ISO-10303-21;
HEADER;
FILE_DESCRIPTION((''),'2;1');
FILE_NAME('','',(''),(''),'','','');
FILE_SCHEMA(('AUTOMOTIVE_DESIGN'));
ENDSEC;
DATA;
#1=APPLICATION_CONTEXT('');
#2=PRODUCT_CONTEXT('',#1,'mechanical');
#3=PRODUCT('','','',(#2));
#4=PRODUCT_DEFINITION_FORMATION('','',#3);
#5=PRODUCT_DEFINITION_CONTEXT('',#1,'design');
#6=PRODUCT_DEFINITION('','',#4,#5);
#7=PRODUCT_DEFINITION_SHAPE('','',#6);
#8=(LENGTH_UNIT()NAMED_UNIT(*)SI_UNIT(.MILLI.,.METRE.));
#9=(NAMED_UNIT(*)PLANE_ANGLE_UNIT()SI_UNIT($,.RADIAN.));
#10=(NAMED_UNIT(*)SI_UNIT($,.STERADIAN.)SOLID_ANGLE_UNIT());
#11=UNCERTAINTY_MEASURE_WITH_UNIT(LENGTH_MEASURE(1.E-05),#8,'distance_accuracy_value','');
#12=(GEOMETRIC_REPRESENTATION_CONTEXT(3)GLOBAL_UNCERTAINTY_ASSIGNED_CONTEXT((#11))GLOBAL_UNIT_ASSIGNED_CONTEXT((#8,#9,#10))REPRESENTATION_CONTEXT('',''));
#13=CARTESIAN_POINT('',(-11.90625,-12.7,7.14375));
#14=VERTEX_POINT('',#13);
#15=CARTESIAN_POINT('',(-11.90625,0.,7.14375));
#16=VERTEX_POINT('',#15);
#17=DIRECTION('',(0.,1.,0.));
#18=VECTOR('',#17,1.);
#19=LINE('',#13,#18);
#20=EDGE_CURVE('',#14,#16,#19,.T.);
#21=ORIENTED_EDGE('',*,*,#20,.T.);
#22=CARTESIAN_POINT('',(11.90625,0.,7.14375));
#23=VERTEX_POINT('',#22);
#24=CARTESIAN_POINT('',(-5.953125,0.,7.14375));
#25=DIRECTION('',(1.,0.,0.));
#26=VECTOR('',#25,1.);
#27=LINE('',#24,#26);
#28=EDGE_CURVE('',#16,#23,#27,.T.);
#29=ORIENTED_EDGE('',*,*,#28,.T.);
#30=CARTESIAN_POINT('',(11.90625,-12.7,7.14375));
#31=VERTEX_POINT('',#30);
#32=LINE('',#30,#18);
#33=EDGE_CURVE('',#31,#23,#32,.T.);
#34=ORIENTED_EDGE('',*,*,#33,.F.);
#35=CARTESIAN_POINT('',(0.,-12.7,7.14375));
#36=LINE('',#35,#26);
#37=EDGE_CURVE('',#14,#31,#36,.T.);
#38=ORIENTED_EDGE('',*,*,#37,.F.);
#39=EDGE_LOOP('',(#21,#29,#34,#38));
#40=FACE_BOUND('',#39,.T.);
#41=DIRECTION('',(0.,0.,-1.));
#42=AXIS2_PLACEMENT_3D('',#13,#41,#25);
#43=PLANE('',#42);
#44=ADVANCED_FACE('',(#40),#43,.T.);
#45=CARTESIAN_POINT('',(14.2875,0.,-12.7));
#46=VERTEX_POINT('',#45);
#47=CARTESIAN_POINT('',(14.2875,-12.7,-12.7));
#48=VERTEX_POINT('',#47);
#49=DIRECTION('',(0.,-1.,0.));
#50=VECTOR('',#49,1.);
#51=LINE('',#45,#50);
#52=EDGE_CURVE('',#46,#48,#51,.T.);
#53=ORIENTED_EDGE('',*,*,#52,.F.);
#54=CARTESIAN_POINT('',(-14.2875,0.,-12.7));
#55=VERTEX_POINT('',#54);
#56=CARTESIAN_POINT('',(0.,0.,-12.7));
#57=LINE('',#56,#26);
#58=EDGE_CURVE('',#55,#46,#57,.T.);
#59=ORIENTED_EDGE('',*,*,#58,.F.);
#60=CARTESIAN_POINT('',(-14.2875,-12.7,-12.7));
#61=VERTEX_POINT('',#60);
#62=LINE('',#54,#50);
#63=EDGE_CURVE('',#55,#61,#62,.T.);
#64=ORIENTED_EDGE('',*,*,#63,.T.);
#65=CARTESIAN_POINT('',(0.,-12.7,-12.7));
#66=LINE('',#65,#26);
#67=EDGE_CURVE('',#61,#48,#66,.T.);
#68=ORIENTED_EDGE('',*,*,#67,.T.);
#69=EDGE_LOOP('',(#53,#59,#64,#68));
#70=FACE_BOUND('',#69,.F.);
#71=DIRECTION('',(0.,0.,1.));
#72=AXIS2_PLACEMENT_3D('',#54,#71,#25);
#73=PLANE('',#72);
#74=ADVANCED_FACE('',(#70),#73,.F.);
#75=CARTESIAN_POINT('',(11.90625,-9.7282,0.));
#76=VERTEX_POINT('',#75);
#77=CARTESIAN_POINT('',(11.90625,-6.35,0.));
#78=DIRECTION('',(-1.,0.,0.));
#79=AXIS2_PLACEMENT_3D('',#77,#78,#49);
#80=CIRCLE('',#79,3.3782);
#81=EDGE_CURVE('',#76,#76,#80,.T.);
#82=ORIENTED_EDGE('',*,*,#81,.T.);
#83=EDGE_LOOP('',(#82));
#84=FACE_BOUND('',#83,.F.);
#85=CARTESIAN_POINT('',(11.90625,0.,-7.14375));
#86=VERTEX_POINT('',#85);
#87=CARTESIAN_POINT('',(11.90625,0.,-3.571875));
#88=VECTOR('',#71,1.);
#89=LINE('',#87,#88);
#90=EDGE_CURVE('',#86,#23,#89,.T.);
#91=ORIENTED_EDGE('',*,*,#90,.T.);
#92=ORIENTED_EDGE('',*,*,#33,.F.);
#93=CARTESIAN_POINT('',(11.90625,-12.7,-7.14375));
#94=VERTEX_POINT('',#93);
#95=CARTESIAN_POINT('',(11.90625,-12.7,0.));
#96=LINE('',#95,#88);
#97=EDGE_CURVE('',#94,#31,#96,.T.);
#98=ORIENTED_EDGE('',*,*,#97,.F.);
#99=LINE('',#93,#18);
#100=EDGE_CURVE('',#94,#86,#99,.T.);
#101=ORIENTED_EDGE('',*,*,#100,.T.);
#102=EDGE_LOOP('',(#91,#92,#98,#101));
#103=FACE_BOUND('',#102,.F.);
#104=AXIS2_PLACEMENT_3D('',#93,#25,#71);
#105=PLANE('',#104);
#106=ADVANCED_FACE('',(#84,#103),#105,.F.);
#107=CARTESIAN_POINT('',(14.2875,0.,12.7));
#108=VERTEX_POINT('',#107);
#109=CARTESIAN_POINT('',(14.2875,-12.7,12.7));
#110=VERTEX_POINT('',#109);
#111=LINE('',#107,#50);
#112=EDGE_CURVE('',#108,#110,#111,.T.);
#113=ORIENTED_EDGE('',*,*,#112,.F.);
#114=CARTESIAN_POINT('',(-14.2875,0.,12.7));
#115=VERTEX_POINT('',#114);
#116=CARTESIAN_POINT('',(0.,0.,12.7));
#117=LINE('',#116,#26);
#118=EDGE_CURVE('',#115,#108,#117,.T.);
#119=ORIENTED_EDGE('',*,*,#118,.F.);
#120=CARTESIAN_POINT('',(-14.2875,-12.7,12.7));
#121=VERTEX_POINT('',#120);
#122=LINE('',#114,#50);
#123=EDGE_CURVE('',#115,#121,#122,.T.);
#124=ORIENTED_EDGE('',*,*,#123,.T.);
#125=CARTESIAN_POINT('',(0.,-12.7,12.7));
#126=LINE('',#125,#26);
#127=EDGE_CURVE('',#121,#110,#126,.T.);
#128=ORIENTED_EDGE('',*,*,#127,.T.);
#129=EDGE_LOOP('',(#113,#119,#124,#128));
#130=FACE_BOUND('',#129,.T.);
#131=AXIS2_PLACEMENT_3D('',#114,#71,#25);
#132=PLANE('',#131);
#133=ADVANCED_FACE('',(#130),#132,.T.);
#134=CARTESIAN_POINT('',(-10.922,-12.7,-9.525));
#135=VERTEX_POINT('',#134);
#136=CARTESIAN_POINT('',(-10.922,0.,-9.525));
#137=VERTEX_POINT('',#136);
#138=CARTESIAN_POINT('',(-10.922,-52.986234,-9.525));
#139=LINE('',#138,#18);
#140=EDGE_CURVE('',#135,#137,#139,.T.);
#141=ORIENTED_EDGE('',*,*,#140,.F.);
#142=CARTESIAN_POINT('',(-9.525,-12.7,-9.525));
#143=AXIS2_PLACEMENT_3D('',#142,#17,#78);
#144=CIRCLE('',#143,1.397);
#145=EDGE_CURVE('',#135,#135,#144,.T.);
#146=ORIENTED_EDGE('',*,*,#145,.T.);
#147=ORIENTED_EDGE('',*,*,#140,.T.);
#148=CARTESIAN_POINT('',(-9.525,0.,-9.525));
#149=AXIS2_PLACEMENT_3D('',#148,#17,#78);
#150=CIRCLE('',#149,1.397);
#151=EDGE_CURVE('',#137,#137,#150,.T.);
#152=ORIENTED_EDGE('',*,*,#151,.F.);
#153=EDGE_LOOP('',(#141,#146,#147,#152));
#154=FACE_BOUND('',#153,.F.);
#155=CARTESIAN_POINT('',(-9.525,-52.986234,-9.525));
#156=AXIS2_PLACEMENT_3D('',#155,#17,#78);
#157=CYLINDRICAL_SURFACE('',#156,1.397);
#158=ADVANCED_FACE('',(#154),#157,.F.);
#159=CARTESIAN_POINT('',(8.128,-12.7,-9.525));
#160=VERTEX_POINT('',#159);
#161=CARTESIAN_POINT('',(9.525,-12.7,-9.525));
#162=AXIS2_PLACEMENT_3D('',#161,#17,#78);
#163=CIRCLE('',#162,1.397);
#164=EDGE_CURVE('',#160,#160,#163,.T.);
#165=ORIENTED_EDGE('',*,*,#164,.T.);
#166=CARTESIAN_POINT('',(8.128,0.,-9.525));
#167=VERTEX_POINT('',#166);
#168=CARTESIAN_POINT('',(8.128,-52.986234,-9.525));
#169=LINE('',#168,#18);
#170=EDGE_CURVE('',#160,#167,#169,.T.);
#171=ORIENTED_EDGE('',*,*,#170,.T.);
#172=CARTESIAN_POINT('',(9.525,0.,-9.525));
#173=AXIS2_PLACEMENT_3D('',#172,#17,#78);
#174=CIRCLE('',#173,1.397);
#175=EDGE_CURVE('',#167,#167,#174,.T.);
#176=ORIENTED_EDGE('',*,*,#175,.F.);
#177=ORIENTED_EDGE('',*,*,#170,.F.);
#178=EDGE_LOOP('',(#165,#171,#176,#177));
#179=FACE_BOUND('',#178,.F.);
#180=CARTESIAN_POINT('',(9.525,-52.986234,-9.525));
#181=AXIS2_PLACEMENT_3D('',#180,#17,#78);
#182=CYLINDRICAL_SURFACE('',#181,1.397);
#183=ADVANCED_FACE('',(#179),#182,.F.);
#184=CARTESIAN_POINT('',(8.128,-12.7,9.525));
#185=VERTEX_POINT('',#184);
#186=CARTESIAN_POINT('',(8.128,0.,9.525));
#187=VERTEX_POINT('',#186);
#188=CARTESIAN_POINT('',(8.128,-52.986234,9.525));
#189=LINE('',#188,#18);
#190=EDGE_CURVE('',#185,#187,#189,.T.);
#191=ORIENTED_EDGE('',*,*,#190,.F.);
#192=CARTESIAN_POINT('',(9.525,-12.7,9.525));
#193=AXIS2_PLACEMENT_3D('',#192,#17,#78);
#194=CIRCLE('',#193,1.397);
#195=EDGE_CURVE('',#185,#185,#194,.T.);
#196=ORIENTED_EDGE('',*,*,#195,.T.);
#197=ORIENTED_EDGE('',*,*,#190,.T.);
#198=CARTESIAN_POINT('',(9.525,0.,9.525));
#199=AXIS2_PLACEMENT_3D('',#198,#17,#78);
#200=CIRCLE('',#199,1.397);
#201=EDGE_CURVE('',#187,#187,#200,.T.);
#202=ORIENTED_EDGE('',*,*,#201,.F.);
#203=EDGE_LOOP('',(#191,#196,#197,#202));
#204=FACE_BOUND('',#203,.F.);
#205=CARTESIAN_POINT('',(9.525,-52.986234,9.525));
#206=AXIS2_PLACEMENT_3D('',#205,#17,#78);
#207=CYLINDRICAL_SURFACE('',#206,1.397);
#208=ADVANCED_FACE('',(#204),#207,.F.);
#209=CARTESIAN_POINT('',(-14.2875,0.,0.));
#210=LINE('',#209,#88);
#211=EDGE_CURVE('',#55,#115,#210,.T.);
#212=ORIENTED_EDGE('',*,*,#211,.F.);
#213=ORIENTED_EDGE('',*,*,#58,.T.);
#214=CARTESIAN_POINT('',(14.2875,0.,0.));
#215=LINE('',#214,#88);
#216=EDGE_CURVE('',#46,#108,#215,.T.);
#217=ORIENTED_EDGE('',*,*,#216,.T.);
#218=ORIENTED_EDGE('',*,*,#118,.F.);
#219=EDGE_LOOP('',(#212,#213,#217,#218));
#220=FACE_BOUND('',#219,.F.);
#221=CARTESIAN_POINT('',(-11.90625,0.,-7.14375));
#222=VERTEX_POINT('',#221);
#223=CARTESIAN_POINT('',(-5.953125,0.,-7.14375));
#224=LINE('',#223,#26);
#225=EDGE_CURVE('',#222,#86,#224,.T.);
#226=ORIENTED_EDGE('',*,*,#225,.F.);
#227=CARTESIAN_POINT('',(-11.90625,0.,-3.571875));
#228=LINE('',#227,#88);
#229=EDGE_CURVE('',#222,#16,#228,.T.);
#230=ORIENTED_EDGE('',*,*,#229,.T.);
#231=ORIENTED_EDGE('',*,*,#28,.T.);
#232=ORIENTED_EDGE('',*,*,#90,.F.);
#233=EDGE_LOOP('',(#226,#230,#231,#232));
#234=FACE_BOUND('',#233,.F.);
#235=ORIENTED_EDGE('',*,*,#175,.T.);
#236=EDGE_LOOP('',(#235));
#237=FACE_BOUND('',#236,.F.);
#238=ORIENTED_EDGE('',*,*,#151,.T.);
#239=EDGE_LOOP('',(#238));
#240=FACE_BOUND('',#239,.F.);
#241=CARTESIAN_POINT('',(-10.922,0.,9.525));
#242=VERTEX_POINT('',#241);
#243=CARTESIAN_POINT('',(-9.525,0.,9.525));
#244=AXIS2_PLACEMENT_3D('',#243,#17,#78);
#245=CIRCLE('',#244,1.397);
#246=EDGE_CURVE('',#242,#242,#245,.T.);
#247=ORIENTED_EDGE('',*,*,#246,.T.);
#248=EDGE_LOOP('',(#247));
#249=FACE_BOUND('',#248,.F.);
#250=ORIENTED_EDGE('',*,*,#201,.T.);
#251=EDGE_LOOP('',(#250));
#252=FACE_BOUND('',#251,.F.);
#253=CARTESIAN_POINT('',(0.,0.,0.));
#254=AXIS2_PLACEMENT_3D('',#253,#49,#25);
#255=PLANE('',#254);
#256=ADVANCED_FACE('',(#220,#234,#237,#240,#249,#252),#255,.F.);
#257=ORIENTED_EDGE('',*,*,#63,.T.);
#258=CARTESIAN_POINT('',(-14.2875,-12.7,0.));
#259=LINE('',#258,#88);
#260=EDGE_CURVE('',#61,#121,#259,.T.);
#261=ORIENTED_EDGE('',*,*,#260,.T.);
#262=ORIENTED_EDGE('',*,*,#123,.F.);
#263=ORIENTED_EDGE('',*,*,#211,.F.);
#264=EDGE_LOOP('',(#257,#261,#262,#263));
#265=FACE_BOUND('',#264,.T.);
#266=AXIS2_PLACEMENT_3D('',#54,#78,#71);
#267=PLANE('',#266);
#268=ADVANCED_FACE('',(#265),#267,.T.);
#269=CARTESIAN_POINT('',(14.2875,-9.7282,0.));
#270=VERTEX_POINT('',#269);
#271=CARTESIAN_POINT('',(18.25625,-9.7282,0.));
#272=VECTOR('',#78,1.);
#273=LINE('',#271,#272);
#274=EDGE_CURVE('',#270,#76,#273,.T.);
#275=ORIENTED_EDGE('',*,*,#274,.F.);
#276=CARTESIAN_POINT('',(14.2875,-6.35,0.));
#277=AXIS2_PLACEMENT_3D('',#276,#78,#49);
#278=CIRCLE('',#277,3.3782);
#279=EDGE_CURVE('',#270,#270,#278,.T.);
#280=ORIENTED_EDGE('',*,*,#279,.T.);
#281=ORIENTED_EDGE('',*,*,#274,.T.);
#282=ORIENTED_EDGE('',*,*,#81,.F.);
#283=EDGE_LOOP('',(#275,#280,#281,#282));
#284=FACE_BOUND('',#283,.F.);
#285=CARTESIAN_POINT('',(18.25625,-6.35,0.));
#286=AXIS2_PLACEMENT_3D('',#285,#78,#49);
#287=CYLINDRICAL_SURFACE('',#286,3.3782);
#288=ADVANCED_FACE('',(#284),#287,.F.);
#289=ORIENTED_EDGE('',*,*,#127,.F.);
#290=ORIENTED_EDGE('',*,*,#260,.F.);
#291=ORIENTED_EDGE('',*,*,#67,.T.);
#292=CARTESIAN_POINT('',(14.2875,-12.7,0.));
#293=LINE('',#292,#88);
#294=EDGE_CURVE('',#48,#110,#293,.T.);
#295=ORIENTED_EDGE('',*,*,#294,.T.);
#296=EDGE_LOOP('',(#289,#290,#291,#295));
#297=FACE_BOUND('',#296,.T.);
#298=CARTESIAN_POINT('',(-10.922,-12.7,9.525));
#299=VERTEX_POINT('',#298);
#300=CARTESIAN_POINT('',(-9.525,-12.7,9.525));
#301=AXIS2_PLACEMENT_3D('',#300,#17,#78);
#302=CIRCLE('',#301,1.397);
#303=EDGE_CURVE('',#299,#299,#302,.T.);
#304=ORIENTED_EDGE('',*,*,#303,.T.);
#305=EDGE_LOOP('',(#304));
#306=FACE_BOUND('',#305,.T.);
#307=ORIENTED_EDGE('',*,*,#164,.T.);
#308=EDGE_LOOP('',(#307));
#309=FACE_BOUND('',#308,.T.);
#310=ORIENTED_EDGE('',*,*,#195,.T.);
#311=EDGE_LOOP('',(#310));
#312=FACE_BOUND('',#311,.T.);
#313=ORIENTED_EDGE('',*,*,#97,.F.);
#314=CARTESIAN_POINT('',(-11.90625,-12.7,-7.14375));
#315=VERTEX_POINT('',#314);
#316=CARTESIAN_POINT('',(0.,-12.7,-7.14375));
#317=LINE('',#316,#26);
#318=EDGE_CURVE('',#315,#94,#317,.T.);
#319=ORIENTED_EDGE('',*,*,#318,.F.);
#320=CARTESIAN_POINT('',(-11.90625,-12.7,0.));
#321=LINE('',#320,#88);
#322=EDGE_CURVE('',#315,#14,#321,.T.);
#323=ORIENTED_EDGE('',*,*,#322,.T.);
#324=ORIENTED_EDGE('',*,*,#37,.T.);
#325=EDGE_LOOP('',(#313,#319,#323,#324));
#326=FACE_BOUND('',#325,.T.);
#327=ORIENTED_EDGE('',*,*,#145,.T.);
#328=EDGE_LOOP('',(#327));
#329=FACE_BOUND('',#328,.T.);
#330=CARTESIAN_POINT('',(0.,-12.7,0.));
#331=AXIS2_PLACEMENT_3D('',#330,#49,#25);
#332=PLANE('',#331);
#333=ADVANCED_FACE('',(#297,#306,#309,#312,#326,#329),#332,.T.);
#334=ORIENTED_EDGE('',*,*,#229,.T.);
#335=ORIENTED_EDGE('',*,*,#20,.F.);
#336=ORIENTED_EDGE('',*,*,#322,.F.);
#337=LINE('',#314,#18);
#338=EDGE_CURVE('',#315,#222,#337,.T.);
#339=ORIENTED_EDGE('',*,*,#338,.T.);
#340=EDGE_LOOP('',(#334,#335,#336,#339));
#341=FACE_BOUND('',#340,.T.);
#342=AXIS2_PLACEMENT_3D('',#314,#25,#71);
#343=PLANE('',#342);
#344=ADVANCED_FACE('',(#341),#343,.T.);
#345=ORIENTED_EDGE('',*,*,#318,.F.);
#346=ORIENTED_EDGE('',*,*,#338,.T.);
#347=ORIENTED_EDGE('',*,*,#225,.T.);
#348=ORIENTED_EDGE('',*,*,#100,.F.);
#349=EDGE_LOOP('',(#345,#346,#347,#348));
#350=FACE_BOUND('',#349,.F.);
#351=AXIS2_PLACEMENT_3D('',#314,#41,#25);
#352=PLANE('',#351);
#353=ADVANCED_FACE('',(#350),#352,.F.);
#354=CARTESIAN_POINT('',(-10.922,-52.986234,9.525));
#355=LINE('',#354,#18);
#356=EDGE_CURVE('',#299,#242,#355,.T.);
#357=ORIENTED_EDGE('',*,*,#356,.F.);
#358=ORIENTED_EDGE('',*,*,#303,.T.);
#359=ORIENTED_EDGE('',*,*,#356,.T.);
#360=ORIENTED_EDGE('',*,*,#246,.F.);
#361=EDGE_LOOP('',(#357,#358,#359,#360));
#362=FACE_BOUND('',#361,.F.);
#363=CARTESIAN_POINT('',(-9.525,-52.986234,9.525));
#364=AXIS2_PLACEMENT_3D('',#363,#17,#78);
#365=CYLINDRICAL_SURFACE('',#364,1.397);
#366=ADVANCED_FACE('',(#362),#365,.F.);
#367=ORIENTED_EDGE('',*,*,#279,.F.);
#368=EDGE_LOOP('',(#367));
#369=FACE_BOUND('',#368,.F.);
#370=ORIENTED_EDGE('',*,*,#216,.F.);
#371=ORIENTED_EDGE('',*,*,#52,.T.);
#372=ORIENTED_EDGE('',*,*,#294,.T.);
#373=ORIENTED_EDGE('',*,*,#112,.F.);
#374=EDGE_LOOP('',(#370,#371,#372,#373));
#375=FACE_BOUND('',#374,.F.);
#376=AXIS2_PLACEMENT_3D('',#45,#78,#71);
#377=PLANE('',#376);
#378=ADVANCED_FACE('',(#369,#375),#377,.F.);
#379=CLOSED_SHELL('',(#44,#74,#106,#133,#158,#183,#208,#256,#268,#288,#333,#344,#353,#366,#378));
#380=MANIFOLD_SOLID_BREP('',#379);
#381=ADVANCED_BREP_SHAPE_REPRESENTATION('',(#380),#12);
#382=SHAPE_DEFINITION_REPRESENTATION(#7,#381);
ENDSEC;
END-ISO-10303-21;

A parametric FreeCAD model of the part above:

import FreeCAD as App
import Part
import Sketcher
from FreeCAD import Vector
Q = App.Units.Quantity

doc = App.newDocument("Part")
body = doc.addObject("PartDesign::Body", "Body")

# Sketch on XZ plane
sketch1 = doc.addObject("Sketcher::SketchObject", "Sketch")
body.addObject(sketch1)
sketch1.AttachmentSupport = (doc.XZ_Plane, [""])
sketch1.MapMode = "FlatFace"
sketch1.addGeometry(Part.LineSegment(Vector(-14.2875, 12.7, 0), Vector(-14.2875, -12.7, 0)), False)
sketch1.addGeometry(Part.LineSegment(Vector(-14.2875, -12.7, 0), Vector(14.2875, -12.7, 0)), False)
sketch1.addGeometry(Part.LineSegment(Vector(14.2875, -12.7, 0), Vector(14.2875, 12.7, 0)), False)
sketch1.addGeometry(Part.LineSegment(Vector(14.2875, 12.7, 0), Vector(-14.2875, 12.7, 0)), False)
sketch1.addConstraint(Sketcher.Constraint("Coincident", 0, 2, 1, 1))
sketch1.addConstraint(Sketcher.Constraint("Coincident", 1, 2, 2, 1))
sketch1.addConstraint(Sketcher.Constraint("Coincident", 2, 2, 3, 1))
sketch1.addConstraint(Sketcher.Constraint("Coincident", 3, 2, 0, 1))
sketch1.addConstraint(Sketcher.Constraint("Vertical", 0))
sketch1.addConstraint(Sketcher.Constraint("Horizontal", 1))
sketch1.addConstraint(Sketcher.Constraint("Vertical", 2))
sketch1.addConstraint(Sketcher.Constraint("Horizontal", 3))
sketch1.addConstraint(Sketcher.Constraint("Symmetric", 0, 2, 2, 2, -1, 1))
sketch1.addConstraint(Sketcher.Constraint("DistanceY", 0, 2, 0, 1, Q("1 in")))
sketch1.addConstraint(Sketcher.Constraint("DistanceX", 1, 1, 1, 2, Q("1.125 in")))
pad1 = doc.addObject("PartDesign::Pad", "Pad")
body.addObject(pad1)
pad1.Profile = sketch1
pad1.Length = Q("0.5 in")

# Sketch on XZ plane
sketch2 = doc.addObject("Sketcher::SketchObject", "Sketch001")
body.addObject(sketch2)
sketch2.AttachmentSupport = (doc.XZ_Plane, [""])
sketch2.MapMode = "FlatFace"
sketch2.AttachmentOffset = App.Placement(Vector(0, 0, 0.5 * 25.4), App.Rotation())
sketch2.addGeometry(Part.LineSegment(Vector(-11.90625, 7.14375, 0), Vector(-11.90625, -7.14375, 0)), False)
sketch2.addGeometry(Part.LineSegment(Vector(-11.90625, -7.14375, 0), Vector(11.90625, -7.14375, 0)), False)
sketch2.addGeometry(Part.LineSegment(Vector(11.90625, -7.14375, 0), Vector(11.90625, 7.14375, 0)), False)
sketch2.addGeometry(Part.LineSegment(Vector(11.90625, 7.14375, 0), Vector(-11.90625, 7.14375, 0)), False)
sketch2.addConstraint(Sketcher.Constraint("Coincident", 0, 2, 1, 1))
sketch2.addConstraint(Sketcher.Constraint("Coincident", 1, 2, 2, 1))
sketch2.addConstraint(Sketcher.Constraint("Coincident", 2, 2, 3, 1))
sketch2.addConstraint(Sketcher.Constraint("Coincident", 3, 2, 0, 1))
sketch2.addConstraint(Sketcher.Constraint("Vertical", 0))
sketch2.addConstraint(Sketcher.Constraint("Horizontal", 1))
sketch2.addConstraint(Sketcher.Constraint("Vertical", 2))
sketch2.addConstraint(Sketcher.Constraint("Horizontal", 3))
sketch2.addConstraint(Sketcher.Constraint("Symmetric", 0, 2, 2, 2, -1, 1))
sketch2.addConstraint(Sketcher.Constraint("DistanceX", 1, 1, 1, 2, Q("0.9375 in")))
sketch2.addConstraint(Sketcher.Constraint("DistanceY", 0, 2, 0, 1, Q("0.5625 in")))
pocket1 = doc.addObject("PartDesign::Pocket", "Pocket")
body.addObject(pocket1)
pocket1.Profile = sketch2
pocket1.Type = "ThroughAll"

# Sketch on YZ plane
sketch3 = doc.addObject("Sketcher::SketchObject", "Sketch002")
body.addObject(sketch3)
sketch3.AttachmentSupport = (doc.YZ_Plane, [""])
sketch3.MapMode = "FlatFace"
sketch3.AttachmentOffset = App.Placement(Vector(0, 0, 0.5625 * 25.4), App.Rotation())
sketch3.addGeometry(Part.Circle(Vector(-6.35, 0, 0), Vector(0, 0, 1), 3.3782), False)
sketch3.addConstraint(Sketcher.Constraint("PointOnObject", 0, 3, -1))
sketch3.addConstraint(Sketcher.Constraint("Diameter", 0, Q("0.266 in")))
sketch3.addConstraint(Sketcher.Constraint("DistanceX", 0, 3, -1, 1, Q("0.25 in")))
doc.recompute()
hole = doc.addObject("PartDesign::Hole", "Hole")
body.addObject(hole)
hole.Profile = sketch3
hole.ThreadType = "None"
hole.Diameter = Q("0.266 in")
hole.DepthType = "Dimension"
hole.Depth = Q("0.15625 in")
hole.DrillPoint = "Angled"
hole.DrillPointAngle = 118

# Sketch on XZ plane
sketch4 = doc.addObject("Sketcher::SketchObject", "Sketch003")
body.addObject(sketch4)
sketch4.AttachmentSupport = (doc.XZ_Plane, [""])
sketch4.MapMode = "FlatFace"
sketch4.AttachmentOffset = App.Placement(Vector(0, 0, 0.5 * 25.4), App.Rotation())
sketch4.addGeometry(Part.Circle(Vector(-9.525, 9.525, 0), Vector(0, 0, 1), 1.397), False)
sketch4.addGeometry(Part.Circle(Vector(9.525, 9.525, 0), Vector(0, 0, 1), 1.397), False)
sketch4.addGeometry(Part.Circle(Vector(9.525, -9.525, 0), Vector(0, 0, 1), 1.397), False)
sketch4.addGeometry(Part.Circle(Vector(-9.525, -9.525, 0), Vector(0, 0, 1), 1.397), False)
sketch4.addConstraint(Sketcher.Constraint("Equal", 0, 1))
sketch4.addConstraint(Sketcher.Constraint("Equal", 1, 2))
sketch4.addConstraint(Sketcher.Constraint("Equal", 2, 3))
sketch4.addConstraint(Sketcher.Constraint("Symmetric", 0, 3, 2, 3, -1, 1))
sketch4.addConstraint(Sketcher.Constraint("Symmetric", 1, 3, 3, 3, -1, 1))
sketch4.addConstraint(Sketcher.Constraint("Symmetric", 0, 3, 1, 3, -2))
sketch4.addConstraint(Sketcher.Constraint("Diameter", 0, Q("0.11 in")))
sketch4.addConstraint(Sketcher.Constraint("DistanceX", 0, 3, 1, 3, Q("0.75 in")))
sketch4.addConstraint(Sketcher.Constraint("DistanceY", 2, 3, 1, 3, Q("0.75 in")))
doc.recompute()
hole2 = doc.addObject("PartDesign::Hole", "Hole001")
body.addObject(hole2)
hole2.Profile = sketch4
hole2.ThreadType = "None"
hole2.Diameter = Q("0.11 in")
hole2.DepthType = "ThroughAll"

doc.recompute()
